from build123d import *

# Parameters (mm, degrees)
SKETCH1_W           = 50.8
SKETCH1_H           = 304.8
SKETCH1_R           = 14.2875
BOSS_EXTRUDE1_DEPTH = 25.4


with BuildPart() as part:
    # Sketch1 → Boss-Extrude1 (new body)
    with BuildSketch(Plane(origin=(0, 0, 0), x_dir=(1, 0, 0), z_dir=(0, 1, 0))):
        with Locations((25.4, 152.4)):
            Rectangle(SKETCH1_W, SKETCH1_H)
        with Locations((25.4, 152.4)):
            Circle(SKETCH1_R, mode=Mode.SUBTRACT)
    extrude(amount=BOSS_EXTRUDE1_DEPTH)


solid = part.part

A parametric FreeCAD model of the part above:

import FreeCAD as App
import Part
import Sketcher

V = App.Vector
Q = App.Units.Quantity


def add_polygon(sketch, points):
    """Adds a closed chain of lines whose ends are joined by coincident constraints."""
    first, n = sketch.GeometryCount, len(points)
    for a, b in zip(points, points[1:] + points[:1]):
        sketch.addGeometry(Part.LineSegment(App.Vector(*a, 0), App.Vector(*b, 0)), False)
    for i in range(n):
        sketch.addConstraint(Sketcher.Constraint("Coincident", first + i, 2, first + (i + 1) % n, 1))

doc = App.newDocument("Part")
body = doc.addObject("PartDesign::Body", "Body")

# Sketch on XZ plane
sketch1 = doc.addObject("Sketcher::SketchObject", "Sketch")
body.addObject(sketch1)
sketch1.AttachmentSupport = (doc.XZ_Plane, [""])
sketch1.MapMode = "FlatFace"
add_polygon(sketch1, [(0, -305), (0, 0), (51, 0), (51, -305)])  # lines 0-3
sketch1.addGeometry(Part.Circle(V(25, -152, 0), V(0, 0, 1), 14), False)  # 4
sketch1.addConstraint([
    Sketcher.Constraint("Vertical", 0),
    Sketcher.Constraint("Horizontal", 1),
    Sketcher.Constraint("Vertical", 2),
    Sketcher.Constraint("Horizontal", 3),
    Sketcher.Constraint("Coincident", 0, 2, -1, 1),
    Sketcher.Constraint("DistanceX", 1, 1, 1, 2, Q("2 in")),
    Sketcher.Constraint("DistanceY", 0, 1, 0, 2, Q("12 in")),
    Sketcher.Constraint("Diameter", 4, Q("1.125 in")),
    Sketcher.Constraint("DistanceX", -1, 1, 4, 3, Q("1 in")),
    Sketcher.Constraint("DistanceY", 4, 3, -1, 1, Q("6 in")),
])
pad1 = doc.addObject("PartDesign::Pad", "Pad")
body.addObject(pad1)
pad1.Profile = sketch1
pad1.Length = Q("1 in")
pad1.Reversed = True

doc.recompute()
